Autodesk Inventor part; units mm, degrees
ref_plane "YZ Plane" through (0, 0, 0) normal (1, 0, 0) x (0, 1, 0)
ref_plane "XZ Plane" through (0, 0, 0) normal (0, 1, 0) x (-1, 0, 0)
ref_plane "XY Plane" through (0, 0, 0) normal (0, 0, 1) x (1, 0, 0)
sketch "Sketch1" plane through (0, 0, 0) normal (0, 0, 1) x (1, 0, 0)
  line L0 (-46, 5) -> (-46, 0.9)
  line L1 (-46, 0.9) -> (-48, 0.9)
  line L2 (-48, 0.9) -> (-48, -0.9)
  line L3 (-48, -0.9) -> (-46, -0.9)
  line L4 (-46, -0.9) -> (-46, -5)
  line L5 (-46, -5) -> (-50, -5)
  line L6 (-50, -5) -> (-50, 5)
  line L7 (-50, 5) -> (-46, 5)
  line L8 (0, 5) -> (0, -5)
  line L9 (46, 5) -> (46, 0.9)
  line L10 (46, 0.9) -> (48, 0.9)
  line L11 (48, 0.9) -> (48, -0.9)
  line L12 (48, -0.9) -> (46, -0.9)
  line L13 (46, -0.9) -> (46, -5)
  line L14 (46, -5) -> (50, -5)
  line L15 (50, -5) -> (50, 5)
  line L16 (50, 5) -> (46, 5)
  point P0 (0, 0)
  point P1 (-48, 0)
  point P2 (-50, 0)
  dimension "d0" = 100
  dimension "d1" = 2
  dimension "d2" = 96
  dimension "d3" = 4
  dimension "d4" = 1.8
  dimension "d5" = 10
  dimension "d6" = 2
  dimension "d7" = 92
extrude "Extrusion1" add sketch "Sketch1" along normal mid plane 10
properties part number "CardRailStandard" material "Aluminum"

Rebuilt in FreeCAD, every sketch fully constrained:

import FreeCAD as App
import Part
import Sketcher
Q = App.Units.Quantity

doc = App.newDocument("Part")
body = doc.addObject("PartDesign::Body", "Body")
body.AllowCompound = True

sketch1 = doc.addObject("Sketcher::SketchObject", "Sketch")
body.addObject(sketch1)
sketch1.AttachmentSupport = (doc.XY_Plane, [""])
sketch1.MapMode = "FlatFace"
sketch1.addGeometry(Part.LineSegment(App.Vector(-46, 0.9, 0), App.Vector(-46, 5, 0)), False)
sketch1.addGeometry(Part.LineSegment(App.Vector(-46, 5, 0), App.Vector(-50, 5, 0)), False)
sketch1.addGeometry(Part.LineSegment(App.Vector(-50, 5, 0), App.Vector(-50, -5, 0)), False)
sketch1.addGeometry(Part.LineSegment(App.Vector(-50, -5, 0), App.Vector(-46, -5, 0)), False)
sketch1.addGeometry(Part.LineSegment(App.Vector(-46, -5, 0), App.Vector(-46, -0.9, 0)), False)
sketch1.addGeometry(Part.LineSegment(App.Vector(-46, -0.9, 0), App.Vector(-48, -0.9, 0)), False)
sketch1.addGeometry(Part.LineSegment(App.Vector(-48, -0.9, 0), App.Vector(-48, 0.9, 0)), False)
sketch1.addGeometry(Part.LineSegment(App.Vector(-48, 0.9, 0), App.Vector(-46, 0.9, 0)), False)
sketch1.addGeometry(Part.LineSegment(App.Vector(50, 5, 0), App.Vector(46, 5, 0)), False)
sketch1.addGeometry(Part.LineSegment(App.Vector(46, 5, 0), App.Vector(46, 0.9, 0)), False)
sketch1.addGeometry(Part.LineSegment(App.Vector(46, 0.9, 0), App.Vector(48, 0.9, 0)), False)
sketch1.addGeometry(Part.LineSegment(App.Vector(48, 0.9, 0), App.Vector(48, -0.9, 0)), False)
sketch1.addGeometry(Part.LineSegment(App.Vector(48, -0.9, 0), App.Vector(46, -0.9, 0)), False)
sketch1.addGeometry(Part.LineSegment(App.Vector(46, -0.9, 0), App.Vector(46, -5, 0)), False)
sketch1.addGeometry(Part.LineSegment(App.Vector(46, -5, 0), App.Vector(50, -5, 0)), False)
sketch1.addGeometry(Part.LineSegment(App.Vector(50, -5, 0), App.Vector(50, 5, 0)), False)
sketch1.addConstraint(Sketcher.Constraint("Coincident", 0, 2, 1, 1))
sketch1.addConstraint(Sketcher.Constraint("Coincident", 1, 2, 2, 1))
sketch1.addConstraint(Sketcher.Constraint("Coincident", 2, 2, 3, 1))
sketch1.addConstraint(Sketcher.Constraint("Coincident", 3, 2, 4, 1))
sketch1.addConstraint(Sketcher.Constraint("Coincident", 4, 2, 5, 1))
sketch1.addConstraint(Sketcher.Constraint("Coincident", 5, 2, 6, 1))
sketch1.addConstraint(Sketcher.Constraint("Coincident", 6, 2, 7, 1))
sketch1.addConstraint(Sketcher.Constraint("Coincident", 7, 2, 0, 1))
sketch1.addConstraint(Sketcher.Constraint("Coincident", 8, 2, 9, 1))
sketch1.addConstraint(Sketcher.Constraint("Coincident", 9, 2, 10, 1))
sketch1.addConstraint(Sketcher.Constraint("Coincident", 10, 2, 11, 1))
sketch1.addConstraint(Sketcher.Constraint("Coincident", 11, 2, 12, 1))
sketch1.addConstraint(Sketcher.Constraint("Coincident", 12, 2, 13, 1))
sketch1.addConstraint(Sketcher.Constraint("Coincident", 13, 2, 14, 1))
sketch1.addConstraint(Sketcher.Constraint("Coincident", 14, 2, 15, 1))
sketch1.addConstraint(Sketcher.Constraint("Coincident", 15, 2, 8, 1))
sketch1.addConstraint(Sketcher.Constraint("Vertical", 0))
sketch1.addConstraint(Sketcher.Constraint("Horizontal", 1))
sketch1.addConstraint(Sketcher.Constraint("Vertical", 2))
sketch1.addConstraint(Sketcher.Constraint("Horizontal", 3))
sketch1.addConstraint(Sketcher.Constraint("Vertical", 4))
sketch1.addConstraint(Sketcher.Constraint("Horizontal", 5))
sketch1.addConstraint(Sketcher.Constraint("Vertical", 6))
sketch1.addConstraint(Sketcher.Constraint("Horizontal", 7))
sketch1.addConstraint(Sketcher.Constraint("Horizontal", 8))
sketch1.addConstraint(Sketcher.Constraint("Vertical", 9))
sketch1.addConstraint(Sketcher.Constraint("Horizontal", 10))
sketch1.addConstraint(Sketcher.Constraint("Vertical", 11))
sketch1.addConstraint(Sketcher.Constraint("Horizontal", 12))
sketch1.addConstraint(Sketcher.Constraint("Vertical", 13))
sketch1.addConstraint(Sketcher.Constraint("Horizontal", 14))
sketch1.addConstraint(Sketcher.Constraint("Vertical", 15))
sketch1.addConstraint(Sketcher.Constraint("Symmetric", 3, 2, 8, 2, -1, 1))
sketch1.addConstraint(Sketcher.Constraint("Symmetric", 5, 2, 10, 2, -1, 1))
sketch1.addConstraint(Sketcher.Constraint("Symmetric", 7, 2, 12, 2, -1, 1))
sketch1.addConstraint(Sketcher.Constraint("Symmetric", 1, 2, 14, 2, -1, 1))
sketch1.addConstraint(Sketcher.Constraint("Symmetric", 0, 2, 8, 2, -2))
sketch1.addConstraint(Sketcher.Constraint("Horizontal", 7, 2, 9, 2))
sketch1.addConstraint(Sketcher.Constraint("DistanceX", 1, 2, 1, 1, Q("4 mm")))
sketch1.addConstraint(Sketcher.Constraint("DistanceX", 5, 2, 5, 1, Q("2 mm")))
sketch1.addConstraint(Sketcher.Constraint("DistanceY", 2, 2, 2, 1, Q("10 mm")))
sketch1.addConstraint(Sketcher.Constraint("DistanceY", 6, 1, 6, 2, Q("1.8 mm")))
sketch1.addConstraint(Sketcher.Constraint("DistanceX", 0, 2, 8, 2, Q("92 mm")))
pad1 = doc.addObject("PartDesign::Pad", "Pad")
body.addObject(pad1)
pad1.Profile = sketch1
pad1.Length = 10
pad1.Midplane = True

doc.recompute()
